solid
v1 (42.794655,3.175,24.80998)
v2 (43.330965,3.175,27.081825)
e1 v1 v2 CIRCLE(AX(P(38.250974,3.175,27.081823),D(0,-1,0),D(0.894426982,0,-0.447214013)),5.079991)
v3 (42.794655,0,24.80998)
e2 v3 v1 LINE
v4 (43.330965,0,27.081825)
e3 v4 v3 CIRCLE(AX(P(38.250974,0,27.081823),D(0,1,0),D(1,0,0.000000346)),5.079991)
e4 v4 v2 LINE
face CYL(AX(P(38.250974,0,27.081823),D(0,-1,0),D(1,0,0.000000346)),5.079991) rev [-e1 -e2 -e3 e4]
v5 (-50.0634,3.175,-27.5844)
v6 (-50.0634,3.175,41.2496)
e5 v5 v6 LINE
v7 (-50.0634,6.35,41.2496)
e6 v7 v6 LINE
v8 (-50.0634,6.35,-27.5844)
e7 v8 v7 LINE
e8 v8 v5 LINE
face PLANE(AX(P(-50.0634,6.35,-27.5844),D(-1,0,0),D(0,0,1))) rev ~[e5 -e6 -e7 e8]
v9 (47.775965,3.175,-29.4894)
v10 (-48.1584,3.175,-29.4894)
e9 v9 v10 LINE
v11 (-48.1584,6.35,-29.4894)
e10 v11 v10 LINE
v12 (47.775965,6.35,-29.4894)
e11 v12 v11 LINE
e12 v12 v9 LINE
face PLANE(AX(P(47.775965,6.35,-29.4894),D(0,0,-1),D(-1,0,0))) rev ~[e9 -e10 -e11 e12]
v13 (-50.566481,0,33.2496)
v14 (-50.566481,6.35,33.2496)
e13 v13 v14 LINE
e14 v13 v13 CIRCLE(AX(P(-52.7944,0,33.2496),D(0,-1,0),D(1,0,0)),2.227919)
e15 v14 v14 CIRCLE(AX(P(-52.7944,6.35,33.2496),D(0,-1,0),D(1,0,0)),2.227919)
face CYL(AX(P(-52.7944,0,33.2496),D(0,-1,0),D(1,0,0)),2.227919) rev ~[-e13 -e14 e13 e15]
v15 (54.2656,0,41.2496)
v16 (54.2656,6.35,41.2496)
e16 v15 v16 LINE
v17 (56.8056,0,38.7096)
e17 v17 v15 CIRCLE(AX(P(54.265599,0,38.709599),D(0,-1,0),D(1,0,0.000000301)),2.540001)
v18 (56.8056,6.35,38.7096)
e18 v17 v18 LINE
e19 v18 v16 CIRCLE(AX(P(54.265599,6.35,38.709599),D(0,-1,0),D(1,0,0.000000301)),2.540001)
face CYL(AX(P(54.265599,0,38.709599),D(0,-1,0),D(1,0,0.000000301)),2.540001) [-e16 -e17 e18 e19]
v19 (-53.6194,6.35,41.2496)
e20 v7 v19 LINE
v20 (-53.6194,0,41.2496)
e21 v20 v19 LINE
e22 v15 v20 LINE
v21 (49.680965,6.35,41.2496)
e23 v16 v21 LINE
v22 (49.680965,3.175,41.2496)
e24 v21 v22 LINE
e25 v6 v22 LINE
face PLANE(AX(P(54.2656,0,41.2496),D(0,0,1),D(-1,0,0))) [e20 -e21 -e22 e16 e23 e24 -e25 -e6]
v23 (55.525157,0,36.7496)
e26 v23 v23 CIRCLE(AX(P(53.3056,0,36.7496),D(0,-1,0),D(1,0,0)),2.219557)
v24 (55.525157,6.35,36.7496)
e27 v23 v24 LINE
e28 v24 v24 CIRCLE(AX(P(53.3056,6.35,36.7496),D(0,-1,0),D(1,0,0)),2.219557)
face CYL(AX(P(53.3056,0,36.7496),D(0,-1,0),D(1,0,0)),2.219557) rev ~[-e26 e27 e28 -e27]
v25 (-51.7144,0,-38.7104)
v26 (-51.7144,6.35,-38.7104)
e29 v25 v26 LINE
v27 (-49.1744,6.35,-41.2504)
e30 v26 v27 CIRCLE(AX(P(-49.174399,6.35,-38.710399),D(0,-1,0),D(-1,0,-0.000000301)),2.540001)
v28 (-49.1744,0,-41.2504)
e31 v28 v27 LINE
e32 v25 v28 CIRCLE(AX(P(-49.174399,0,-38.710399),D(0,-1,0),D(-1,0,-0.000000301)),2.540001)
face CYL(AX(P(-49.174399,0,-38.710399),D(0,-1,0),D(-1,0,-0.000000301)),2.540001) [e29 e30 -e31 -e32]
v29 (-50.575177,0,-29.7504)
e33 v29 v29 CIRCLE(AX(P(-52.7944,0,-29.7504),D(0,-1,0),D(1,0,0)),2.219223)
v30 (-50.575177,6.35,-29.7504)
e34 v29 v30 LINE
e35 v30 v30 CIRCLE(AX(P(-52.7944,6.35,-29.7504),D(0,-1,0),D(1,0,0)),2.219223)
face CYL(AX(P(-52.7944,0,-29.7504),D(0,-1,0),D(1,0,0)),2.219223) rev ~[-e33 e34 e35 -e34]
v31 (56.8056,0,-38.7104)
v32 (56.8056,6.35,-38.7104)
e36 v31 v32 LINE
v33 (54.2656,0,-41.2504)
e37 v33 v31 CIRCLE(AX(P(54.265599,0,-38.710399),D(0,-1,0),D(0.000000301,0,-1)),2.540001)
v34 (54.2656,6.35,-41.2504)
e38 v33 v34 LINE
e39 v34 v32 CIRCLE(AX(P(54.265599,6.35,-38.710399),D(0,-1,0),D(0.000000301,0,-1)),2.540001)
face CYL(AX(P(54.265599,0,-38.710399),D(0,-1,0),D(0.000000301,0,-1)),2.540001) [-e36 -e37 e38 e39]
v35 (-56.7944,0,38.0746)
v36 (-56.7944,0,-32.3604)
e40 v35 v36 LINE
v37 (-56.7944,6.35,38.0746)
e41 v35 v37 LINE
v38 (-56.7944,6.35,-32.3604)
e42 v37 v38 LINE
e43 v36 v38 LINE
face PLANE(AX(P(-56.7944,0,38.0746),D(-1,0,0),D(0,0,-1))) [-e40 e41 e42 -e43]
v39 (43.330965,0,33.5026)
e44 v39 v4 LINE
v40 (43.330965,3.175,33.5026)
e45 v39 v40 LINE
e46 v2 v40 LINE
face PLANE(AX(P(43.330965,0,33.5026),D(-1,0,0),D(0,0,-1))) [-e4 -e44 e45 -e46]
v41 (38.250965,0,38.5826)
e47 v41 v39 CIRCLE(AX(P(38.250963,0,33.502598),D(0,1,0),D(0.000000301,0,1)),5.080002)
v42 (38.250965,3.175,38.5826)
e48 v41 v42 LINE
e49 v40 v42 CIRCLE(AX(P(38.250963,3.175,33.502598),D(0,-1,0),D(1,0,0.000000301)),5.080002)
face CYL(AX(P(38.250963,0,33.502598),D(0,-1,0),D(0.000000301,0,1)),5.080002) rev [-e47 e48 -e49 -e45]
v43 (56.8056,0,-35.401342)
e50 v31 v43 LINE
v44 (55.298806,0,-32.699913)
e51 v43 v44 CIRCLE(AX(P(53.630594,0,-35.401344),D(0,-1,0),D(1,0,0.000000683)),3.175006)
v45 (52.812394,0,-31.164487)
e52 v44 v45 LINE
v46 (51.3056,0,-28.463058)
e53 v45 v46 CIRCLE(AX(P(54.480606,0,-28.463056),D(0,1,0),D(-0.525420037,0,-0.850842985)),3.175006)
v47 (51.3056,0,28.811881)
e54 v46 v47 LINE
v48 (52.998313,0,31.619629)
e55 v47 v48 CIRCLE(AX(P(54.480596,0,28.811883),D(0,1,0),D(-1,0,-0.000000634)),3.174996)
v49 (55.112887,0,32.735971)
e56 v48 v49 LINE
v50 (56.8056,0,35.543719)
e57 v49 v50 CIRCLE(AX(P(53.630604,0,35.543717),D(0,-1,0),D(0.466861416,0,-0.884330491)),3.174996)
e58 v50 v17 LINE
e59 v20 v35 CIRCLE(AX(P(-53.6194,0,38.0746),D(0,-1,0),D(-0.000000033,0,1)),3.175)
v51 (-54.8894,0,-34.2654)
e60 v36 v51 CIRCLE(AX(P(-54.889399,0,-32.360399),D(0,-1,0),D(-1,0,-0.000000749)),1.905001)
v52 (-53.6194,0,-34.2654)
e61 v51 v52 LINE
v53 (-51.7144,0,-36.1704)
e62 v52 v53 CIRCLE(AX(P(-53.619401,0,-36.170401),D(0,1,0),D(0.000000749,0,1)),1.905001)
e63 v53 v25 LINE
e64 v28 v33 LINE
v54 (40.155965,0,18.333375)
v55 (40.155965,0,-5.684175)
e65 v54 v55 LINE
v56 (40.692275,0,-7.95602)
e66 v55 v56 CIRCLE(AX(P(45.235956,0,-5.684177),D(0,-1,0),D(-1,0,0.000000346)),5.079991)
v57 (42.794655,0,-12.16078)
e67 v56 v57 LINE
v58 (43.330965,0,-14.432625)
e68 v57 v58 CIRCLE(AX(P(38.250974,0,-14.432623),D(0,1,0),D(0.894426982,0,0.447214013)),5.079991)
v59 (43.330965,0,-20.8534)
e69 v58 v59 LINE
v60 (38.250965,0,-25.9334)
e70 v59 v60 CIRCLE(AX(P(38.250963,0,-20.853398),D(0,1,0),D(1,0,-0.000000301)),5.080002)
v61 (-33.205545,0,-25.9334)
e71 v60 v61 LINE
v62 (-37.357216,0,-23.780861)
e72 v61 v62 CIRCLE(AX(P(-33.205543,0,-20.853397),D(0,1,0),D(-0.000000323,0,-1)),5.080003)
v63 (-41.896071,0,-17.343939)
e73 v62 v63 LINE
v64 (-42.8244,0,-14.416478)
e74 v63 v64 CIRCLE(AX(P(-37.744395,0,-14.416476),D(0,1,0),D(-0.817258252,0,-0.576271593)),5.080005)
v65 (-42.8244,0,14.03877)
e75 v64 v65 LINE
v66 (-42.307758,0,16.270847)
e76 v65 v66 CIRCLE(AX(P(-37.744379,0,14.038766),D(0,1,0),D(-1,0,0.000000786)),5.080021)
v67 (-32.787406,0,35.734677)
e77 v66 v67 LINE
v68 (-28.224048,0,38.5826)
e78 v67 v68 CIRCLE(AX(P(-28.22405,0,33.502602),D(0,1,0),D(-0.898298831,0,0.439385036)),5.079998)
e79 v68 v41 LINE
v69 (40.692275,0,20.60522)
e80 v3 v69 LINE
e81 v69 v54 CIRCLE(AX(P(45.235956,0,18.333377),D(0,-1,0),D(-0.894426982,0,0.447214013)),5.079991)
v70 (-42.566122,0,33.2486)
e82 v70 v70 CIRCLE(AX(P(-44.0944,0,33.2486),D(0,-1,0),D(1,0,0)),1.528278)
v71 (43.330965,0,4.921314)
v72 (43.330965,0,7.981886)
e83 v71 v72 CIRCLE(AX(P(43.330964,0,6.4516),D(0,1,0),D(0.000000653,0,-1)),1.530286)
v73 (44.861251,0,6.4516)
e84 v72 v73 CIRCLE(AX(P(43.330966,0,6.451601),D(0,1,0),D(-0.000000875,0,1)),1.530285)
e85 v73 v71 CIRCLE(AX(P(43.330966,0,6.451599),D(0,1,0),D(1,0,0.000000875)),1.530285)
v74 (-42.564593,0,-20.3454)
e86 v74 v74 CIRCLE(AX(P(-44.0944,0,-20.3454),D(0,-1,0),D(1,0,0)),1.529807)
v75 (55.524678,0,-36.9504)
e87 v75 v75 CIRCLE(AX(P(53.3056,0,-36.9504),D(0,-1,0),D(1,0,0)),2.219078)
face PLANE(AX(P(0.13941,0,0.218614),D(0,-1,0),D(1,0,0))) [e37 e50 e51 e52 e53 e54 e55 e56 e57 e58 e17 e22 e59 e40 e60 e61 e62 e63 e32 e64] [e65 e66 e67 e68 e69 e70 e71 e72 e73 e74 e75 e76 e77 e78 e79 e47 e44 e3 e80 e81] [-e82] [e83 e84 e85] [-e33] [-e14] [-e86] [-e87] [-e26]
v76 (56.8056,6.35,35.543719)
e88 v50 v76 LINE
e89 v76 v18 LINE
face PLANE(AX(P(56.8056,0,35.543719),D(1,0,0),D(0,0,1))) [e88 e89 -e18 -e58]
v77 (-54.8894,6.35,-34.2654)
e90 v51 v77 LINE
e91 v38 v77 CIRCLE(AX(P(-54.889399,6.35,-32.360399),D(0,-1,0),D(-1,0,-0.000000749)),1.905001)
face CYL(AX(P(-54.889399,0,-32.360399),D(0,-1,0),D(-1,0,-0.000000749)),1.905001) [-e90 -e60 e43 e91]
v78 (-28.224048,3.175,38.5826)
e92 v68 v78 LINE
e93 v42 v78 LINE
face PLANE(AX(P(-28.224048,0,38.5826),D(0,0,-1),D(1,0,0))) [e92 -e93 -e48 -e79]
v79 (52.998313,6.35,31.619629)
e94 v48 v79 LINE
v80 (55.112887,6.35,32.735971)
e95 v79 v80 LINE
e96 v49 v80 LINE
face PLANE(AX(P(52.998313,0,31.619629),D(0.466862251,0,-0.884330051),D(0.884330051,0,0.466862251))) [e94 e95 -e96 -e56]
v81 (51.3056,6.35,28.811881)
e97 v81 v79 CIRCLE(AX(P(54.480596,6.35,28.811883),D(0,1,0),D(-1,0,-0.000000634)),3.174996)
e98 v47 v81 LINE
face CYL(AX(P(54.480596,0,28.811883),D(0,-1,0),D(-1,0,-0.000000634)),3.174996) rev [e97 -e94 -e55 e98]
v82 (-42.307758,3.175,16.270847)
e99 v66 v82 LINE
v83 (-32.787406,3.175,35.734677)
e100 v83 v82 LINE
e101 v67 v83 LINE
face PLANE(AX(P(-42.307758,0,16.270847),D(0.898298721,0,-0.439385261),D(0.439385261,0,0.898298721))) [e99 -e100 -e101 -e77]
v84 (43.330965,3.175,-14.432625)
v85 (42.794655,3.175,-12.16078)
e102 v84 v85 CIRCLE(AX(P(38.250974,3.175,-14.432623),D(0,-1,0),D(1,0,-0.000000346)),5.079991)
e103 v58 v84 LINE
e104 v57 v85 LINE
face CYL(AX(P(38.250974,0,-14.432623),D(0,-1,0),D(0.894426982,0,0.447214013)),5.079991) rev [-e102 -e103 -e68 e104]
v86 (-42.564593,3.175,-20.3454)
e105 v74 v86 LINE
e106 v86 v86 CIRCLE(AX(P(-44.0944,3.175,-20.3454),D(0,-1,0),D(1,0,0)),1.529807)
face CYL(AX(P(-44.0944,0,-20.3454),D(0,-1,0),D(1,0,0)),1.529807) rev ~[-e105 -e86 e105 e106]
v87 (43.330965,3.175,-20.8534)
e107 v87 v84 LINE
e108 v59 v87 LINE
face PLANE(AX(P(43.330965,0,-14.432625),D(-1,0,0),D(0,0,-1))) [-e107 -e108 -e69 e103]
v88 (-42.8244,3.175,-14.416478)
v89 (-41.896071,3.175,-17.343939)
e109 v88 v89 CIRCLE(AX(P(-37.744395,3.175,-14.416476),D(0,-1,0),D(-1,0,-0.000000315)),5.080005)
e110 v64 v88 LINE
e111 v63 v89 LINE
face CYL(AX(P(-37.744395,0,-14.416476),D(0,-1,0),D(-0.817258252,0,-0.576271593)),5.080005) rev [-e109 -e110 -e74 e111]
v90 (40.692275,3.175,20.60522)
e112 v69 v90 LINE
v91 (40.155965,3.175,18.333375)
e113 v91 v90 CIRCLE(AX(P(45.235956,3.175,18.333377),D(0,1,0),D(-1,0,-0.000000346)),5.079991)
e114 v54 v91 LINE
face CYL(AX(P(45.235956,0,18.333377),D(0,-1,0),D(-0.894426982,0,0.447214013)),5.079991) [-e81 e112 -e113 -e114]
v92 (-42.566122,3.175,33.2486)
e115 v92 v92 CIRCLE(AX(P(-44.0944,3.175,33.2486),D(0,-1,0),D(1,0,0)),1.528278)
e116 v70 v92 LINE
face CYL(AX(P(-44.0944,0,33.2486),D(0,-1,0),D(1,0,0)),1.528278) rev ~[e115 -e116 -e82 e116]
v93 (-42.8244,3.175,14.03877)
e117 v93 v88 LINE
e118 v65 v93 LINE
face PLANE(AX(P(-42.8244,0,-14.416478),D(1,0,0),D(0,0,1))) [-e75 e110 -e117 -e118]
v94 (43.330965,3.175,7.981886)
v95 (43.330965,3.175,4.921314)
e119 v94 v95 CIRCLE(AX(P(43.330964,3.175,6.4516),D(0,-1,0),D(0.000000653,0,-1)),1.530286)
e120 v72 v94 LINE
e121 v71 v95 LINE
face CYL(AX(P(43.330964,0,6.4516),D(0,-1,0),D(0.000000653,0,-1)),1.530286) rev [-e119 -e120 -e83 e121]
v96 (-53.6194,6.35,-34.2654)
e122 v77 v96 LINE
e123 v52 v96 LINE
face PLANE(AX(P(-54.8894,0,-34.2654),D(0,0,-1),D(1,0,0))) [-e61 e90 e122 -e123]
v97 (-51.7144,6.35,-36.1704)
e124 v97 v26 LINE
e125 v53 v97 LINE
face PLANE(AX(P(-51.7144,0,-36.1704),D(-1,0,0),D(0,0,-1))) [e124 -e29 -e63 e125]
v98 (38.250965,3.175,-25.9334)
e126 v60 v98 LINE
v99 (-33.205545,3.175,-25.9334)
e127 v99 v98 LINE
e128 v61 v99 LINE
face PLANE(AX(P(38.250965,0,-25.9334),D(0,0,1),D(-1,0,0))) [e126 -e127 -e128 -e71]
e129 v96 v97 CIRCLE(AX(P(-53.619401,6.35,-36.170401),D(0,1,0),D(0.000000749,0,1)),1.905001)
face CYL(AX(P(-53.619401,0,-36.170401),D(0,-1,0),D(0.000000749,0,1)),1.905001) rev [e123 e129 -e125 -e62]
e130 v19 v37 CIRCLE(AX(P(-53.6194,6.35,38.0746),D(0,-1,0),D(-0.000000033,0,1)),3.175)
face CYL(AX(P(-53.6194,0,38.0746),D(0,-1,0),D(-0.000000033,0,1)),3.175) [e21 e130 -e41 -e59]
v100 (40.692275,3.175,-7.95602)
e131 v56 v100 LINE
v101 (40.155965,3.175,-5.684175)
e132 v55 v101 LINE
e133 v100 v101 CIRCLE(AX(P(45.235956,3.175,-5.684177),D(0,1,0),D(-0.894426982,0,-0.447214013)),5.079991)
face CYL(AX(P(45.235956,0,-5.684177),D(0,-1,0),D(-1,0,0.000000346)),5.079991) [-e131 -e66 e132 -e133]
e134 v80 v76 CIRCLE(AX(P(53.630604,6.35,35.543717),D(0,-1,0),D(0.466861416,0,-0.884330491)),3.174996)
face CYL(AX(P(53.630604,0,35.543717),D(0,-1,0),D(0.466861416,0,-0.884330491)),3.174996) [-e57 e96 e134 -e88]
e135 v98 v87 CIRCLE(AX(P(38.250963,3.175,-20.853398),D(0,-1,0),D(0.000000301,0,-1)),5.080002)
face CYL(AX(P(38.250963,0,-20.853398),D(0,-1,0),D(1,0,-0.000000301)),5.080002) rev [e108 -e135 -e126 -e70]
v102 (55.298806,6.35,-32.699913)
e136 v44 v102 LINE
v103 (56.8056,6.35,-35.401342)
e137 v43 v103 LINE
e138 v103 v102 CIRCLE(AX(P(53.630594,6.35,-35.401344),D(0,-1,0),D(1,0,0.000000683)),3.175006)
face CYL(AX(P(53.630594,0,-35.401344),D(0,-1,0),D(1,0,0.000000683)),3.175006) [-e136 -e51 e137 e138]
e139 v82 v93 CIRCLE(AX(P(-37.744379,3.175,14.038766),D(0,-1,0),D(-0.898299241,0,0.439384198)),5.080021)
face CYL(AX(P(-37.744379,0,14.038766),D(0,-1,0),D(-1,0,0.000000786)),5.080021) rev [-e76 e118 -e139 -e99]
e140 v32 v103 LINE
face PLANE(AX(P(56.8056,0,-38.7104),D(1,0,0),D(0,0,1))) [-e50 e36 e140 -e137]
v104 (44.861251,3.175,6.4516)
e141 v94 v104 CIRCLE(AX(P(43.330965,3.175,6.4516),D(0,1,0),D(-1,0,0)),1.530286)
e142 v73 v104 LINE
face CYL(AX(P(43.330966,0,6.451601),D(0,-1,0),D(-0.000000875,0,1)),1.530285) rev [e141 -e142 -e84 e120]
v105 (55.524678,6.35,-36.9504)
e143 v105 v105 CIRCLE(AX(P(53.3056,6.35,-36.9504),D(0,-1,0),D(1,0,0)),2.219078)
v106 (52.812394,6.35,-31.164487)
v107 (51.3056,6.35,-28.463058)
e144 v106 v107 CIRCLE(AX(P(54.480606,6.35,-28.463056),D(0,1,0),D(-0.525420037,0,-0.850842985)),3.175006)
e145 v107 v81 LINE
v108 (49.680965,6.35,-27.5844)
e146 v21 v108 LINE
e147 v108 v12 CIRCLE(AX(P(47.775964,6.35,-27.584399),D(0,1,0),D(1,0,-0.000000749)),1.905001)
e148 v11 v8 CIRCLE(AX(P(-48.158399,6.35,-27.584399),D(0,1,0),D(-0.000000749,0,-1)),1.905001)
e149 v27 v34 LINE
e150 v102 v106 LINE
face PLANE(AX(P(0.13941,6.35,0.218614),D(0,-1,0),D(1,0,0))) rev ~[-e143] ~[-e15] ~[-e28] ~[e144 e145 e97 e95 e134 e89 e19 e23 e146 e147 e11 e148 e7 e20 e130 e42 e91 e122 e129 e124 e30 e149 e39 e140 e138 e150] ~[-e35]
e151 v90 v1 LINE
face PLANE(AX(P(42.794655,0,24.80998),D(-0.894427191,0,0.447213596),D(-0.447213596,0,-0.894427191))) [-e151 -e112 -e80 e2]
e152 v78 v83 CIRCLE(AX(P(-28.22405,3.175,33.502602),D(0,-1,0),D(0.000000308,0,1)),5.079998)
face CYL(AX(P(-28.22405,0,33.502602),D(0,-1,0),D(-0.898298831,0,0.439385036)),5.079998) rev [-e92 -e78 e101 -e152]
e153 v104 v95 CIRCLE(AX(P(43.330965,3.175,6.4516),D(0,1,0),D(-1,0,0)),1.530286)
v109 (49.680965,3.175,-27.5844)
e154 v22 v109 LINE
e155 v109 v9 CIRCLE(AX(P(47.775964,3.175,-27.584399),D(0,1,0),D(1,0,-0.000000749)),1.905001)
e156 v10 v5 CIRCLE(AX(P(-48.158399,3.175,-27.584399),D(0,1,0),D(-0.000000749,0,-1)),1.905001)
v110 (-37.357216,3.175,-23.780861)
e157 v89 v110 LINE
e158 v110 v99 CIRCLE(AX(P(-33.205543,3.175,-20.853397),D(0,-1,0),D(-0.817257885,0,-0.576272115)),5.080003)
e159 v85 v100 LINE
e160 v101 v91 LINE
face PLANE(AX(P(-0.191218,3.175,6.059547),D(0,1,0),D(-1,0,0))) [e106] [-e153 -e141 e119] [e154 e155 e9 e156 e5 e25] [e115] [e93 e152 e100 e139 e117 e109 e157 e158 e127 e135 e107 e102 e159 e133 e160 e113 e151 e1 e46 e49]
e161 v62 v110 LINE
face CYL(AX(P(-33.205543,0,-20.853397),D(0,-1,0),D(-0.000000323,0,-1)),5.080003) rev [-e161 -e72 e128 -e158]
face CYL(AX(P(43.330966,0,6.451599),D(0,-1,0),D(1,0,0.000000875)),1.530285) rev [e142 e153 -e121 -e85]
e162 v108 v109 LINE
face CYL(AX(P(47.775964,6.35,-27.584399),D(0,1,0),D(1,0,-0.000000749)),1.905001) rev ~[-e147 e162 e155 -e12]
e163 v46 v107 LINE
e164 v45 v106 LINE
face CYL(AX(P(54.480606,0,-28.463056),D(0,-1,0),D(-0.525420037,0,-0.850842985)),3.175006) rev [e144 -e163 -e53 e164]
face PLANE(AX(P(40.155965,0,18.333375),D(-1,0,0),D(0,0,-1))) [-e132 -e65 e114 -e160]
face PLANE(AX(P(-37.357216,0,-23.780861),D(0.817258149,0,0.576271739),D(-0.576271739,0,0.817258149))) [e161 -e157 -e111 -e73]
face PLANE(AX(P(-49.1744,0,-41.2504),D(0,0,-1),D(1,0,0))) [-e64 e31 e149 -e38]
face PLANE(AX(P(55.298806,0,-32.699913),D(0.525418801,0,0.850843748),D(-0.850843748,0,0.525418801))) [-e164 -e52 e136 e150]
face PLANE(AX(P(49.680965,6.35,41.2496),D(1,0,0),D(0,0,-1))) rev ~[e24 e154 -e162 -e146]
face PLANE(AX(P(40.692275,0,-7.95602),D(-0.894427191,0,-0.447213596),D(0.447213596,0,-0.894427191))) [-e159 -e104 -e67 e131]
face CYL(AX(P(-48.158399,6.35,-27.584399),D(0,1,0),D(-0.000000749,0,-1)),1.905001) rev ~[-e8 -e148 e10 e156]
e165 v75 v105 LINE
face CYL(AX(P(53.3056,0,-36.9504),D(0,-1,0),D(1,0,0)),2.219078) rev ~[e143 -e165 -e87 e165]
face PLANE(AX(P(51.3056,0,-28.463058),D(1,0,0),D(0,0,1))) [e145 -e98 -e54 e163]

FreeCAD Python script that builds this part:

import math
import FreeCAD as App
import Part
import Sketcher
from FreeCAD import Vector
Q = App.Units.Quantity

doc = App.newDocument("Part")
body = doc.addObject("PartDesign::Body", "Body")

# Sketch on XZ plane
sketch1 = doc.addObject("Sketcher::SketchObject", "Sketch")
body.addObject(sketch1)
sketch1.AttachmentSupport = (doc.XZ_Plane, [""])
sketch1.MapMode = "FlatFace"
sketch1.addGeometry(Part.LineSegment(Vector(54.2656, 41.2496, 0), Vector(-53.6194, 41.2496, 0)), False)
sketch1.addGeometry(Part.ArcOfCircle(Part.Circle(Vector(-53.6194, 38.0746, 0), Vector(0, 0, 1), 3.175), math.radians(90.000002), math.radians(179.999998)), False)
sketch1.addGeometry(Part.LineSegment(Vector(-56.7944, 38.0746, 0), Vector(-56.7944, -32.3604, 0)), False)
sketch1.addGeometry(Part.ArcOfCircle(Part.Circle(Vector(-54.889399, -32.360399, 0), Vector(0, 0, 1), 1.905001), math.radians(-179.999957), math.radians(-90.000043)), False)
sketch1.addGeometry(Part.LineSegment(Vector(-54.8894, -34.2654, 0), Vector(-53.6194, -34.2654, 0)), False)
sketch1.addGeometry(Part.ArcOfCircle(Part.Circle(Vector(-53.619401, -36.170401, 0), Vector(0, 0, 1), 1.905001), math.radians(0.000043), math.radians(89.999957)), False)
sketch1.addGeometry(Part.LineSegment(Vector(-51.7144, -36.1704, 0), Vector(-51.7144, -38.7104, 0)), False)
sketch1.addGeometry(Part.ArcOfCircle(Part.Circle(Vector(-49.174399, -38.710399, 0), Vector(0, 0, 1), 2.540001), math.radians(-179.999983), math.radians(-90.000017)), False)
sketch1.addGeometry(Part.LineSegment(Vector(-49.1744, -41.2504, 0), Vector(54.2656, -41.2504, 0)), False)
sketch1.addGeometry(Part.ArcOfCircle(Part.Circle(Vector(54.265599, -38.710399, 0), Vector(0, 0, 1), 2.540001), math.radians(-89.999983), math.radians(-0.000017)), False)
sketch1.addGeometry(Part.LineSegment(Vector(56.8056, -38.7104, 0), Vector(56.8056, -35.401342, 0)), False)
sketch1.addGeometry(Part.ArcOfCircle(Part.Circle(Vector(53.630594, -35.401344, 0), Vector(0, 0, 1), 3.175006), math.radians(0.000039), math.radians(58.303476)), False)
sketch1.addGeometry(Part.LineSegment(Vector(55.298806, -32.699913, 0), Vector(52.812394, -31.164487, 0)), False)
sketch1.addGeometry(Part.ArcOfCircle(Part.Circle(Vector(54.480606, -28.463056, 0), Vector(0, 0, 1), 3.175006), math.radians(-179.999961), math.radians(-121.696524)), False)
sketch1.addGeometry(Part.LineSegment(Vector(51.3056, -28.463058, 0), Vector(51.3056, 28.811881, 0)), False)
sketch1.addGeometry(Part.ArcOfCircle(Part.Circle(Vector(54.480596, 28.811883, 0), Vector(0, 0, 1), 3.174996), math.radians(117.830756), math.radians(180.000036)), False)
sketch1.addGeometry(Part.LineSegment(Vector(52.998313, 31.619629, 0), Vector(55.112887, 32.735971, 0)), False)
sketch1.addGeometry(Part.ArcOfCircle(Part.Circle(Vector(53.630604, 35.543717, 0), Vector(0, 0, 1), 3.174996), math.radians(-62.169244), math.radians(0.000036)), False)
sketch1.addGeometry(Part.LineSegment(Vector(56.8056, 35.543719, 0), Vector(56.8056, 38.7096, 0)), False)
sketch1.addGeometry(Part.ArcOfCircle(Part.Circle(Vector(54.265599, 38.709599, 0), Vector(0, 0, 1), 2.540001), math.radians(0.000017), math.radians(89.999983)), False)
sketch1.addGeometry(Part.Circle(Vector(-52.7944, -29.7504, 0), Vector(0, 0, 1), 2.219223), False)
sketch1.addGeometry(Part.Circle(Vector(-44.0944, -20.3454, 0), Vector(0, 0, 1), 1.529807), False)
sketch1.addGeometry(Part.Circle(Vector(53.3056, -36.9504, 0), Vector(0, 0, 1), 2.219078), False)
sketch1.addGeometry(Part.Circle(Vector(-52.7944, 33.2496, 0), Vector(0, 0, 1), 2.227919), False)
sketch1.addGeometry(Part.Circle(Vector(-44.0944, 33.2486, 0), Vector(0, 0, 1), 1.528278), False)
sketch1.addGeometry(Part.LineSegment(Vector(43.330965, -14.432625, 0), Vector(43.330965, -20.8534, 0)), False)
sketch1.addGeometry(Part.ArcOfCircle(Part.Circle(Vector(38.250963, -20.853398, 0), Vector(0, 0, 1), 5.080002), math.radians(-89.999983), math.radians(-0.000017)), False)
sketch1.addGeometry(Part.LineSegment(Vector(38.250965, -25.9334, 0), Vector(-33.205545, -25.9334, 0)), False)
sketch1.addGeometry(Part.ArcOfCircle(Part.Circle(Vector(-33.205543, -20.853397, 0), Vector(0, 0, 1), 5.080003), math.radians(-144.811232), math.radians(-90.000019)), False)
sketch1.addGeometry(Part.LineSegment(Vector(-37.357216, -23.780861, 0), Vector(-41.896071, -17.343939, 0)), False)
sketch1.addGeometry(Part.ArcOfCircle(Part.Circle(Vector(-37.744395, -14.416476, 0), Vector(0, 0, 1), 5.080005), math.radians(-179.999982), math.radians(-144.811269)), False)
sketch1.addGeometry(Part.LineSegment(Vector(-42.8244, -14.416478, 0), Vector(-42.8244, 14.03877, 0)), False)
sketch1.addGeometry(Part.ArcOfCircle(Part.Circle(Vector(-37.744379, 14.038766, 0), Vector(0, 0, 1), 5.080021), math.radians(153.935403), math.radians(179.999955)), False)
sketch1.addGeometry(Part.LineSegment(Vector(-42.307758, 16.270847, 0), Vector(-32.787406, 35.734677, 0)), False)
sketch1.addGeometry(Part.ArcOfCircle(Part.Circle(Vector(-28.22405, 33.502602, 0), Vector(0, 0, 1), 5.079998), math.radians(89.999982), math.radians(153.935349)), False)
sketch1.addGeometry(Part.LineSegment(Vector(-28.224048, 38.5826, 0), Vector(38.250965, 38.5826, 0)), False)
sketch1.addGeometry(Part.ArcOfCircle(Part.Circle(Vector(38.250963, 33.502598, 0), Vector(0, 0, 1), 5.080002), math.radians(0.000017), math.radians(89.999983)), False)
sketch1.addGeometry(Part.LineSegment(Vector(43.330965, 33.5026, 0), Vector(43.330965, 27.081825, 0)), False)
sketch1.addGeometry(Part.ArcOfCircle(Part.Circle(Vector(38.250974, 27.081823, 0), Vector(0, 0, 1), 5.079991), math.radians(-26.565078), math.radians(0.00002)), False)
sketch1.addGeometry(Part.LineSegment(Vector(42.794655, 24.80998, 0), Vector(40.692275, 20.60522, 0)), False)
sketch1.addGeometry(Part.ArcOfCircle(Part.Circle(Vector(45.235956, 18.333377, 0), Vector(0, 0, 1), 5.079991), math.radians(153.434922), math.radians(180.00002)), False)
sketch1.addGeometry(Part.LineSegment(Vector(40.155965, 18.333375, 0), Vector(40.155965, -5.684175, 0)), False)
sketch1.addGeometry(Part.ArcOfCircle(Part.Circle(Vector(45.235956, -5.684177, 0), Vector(0, 0, 1), 5.079991), math.radians(179.99998), math.radians(206.565078)), False)
sketch1.addGeometry(Part.LineSegment(Vector(40.692275, -7.95602, 0), Vector(42.794655, -12.16078, 0)), False)
sketch1.addGeometry(Part.ArcOfCircle(Part.Circle(Vector(38.250974, -14.432623, 0), Vector(0, 0, 1), 5.079991), math.radians(-0.00002), math.radians(26.565078)), False)
sketch1.addGeometry(Part.ArcOfCircle(Part.Circle(Vector(43.330964, 6.4516, 0), Vector(0, 0, 1), 1.530286), math.radians(89.999963), math.radians(270.000037)), False)
sketch1.addGeometry(Part.ArcOfCircle(Part.Circle(Vector(43.330966, 6.451601, 0), Vector(0, 0, 1), 1.530285), math.radians(-0.00005), math.radians(90.00005)), False)
sketch1.addGeometry(Part.ArcOfCircle(Part.Circle(Vector(43.330966, 6.451599, 0), Vector(0, 0, 1), 1.530285), math.radians(-90.00005), math.radians(0.00005)), False)
sketch1.addGeometry(Part.Circle(Vector(53.3056, 36.7496, 0), Vector(0, 0, 1), 2.219557), False)
sketch1.addConstraint(Sketcher.Constraint("Tangent", 0, 2, 1, 1))
sketch1.addConstraint(Sketcher.Constraint("Tangent", 1, 2, 2, 1))
sketch1.addConstraint(Sketcher.Constraint("Tangent", 2, 2, 3, 1))
sketch1.addConstraint(Sketcher.Constraint("Tangent", 3, 2, 4, 1))
sketch1.addConstraint(Sketcher.Constraint("Tangent", 4, 2, 5, 2))
sketch1.addConstraint(Sketcher.Constraint("Tangent", 5, 1, 6, 1))
sketch1.addConstraint(Sketcher.Constraint("Tangent", 6, 2, 7, 1))
sketch1.addConstraint(Sketcher.Constraint("Tangent", 7, 2, 8, 1))
sketch1.addConstraint(Sketcher.Constraint("Tangent", 8, 2, 9, 1))
sketch1.addConstraint(Sketcher.Constraint("Tangent", 9, 2, 10, 1))
sketch1.addConstraint(Sketcher.Constraint("Tangent", 10, 2, 11, 1))
sketch1.addConstraint(Sketcher.Constraint("Tangent", 11, 2, 12, 1))
sketch1.addConstraint(Sketcher.Constraint("Tangent", 12, 2, 13, 2))
sketch1.addConstraint(Sketcher.Constraint("Tangent", 13, 1, 14, 1))
sketch1.addConstraint(Sketcher.Constraint("Tangent", 14, 2, 15, 2))
sketch1.addConstraint(Sketcher.Constraint("Tangent", 15, 1, 16, 1))
sketch1.addConstraint(Sketcher.Constraint("Tangent", 16, 2, 17, 1))
sketch1.addConstraint(Sketcher.Constraint("Tangent", 17, 2, 18, 1))
sketch1.addConstraint(Sketcher.Constraint("Tangent", 18, 2, 19, 1))
sketch1.addConstraint(Sketcher.Constraint("Tangent", 19, 2, 0, 1))
sketch1.addConstraint(Sketcher.Constraint("Tangent", 25, 2, 26, 2))
sketch1.addConstraint(Sketcher.Constraint("Tangent", 26, 1, 27, 1))
sketch1.addConstraint(Sketcher.Constraint("Tangent", 27, 2, 28, 2))
sketch1.addConstraint(Sketcher.Constraint("Tangent", 28, 1, 29, 1))
sketch1.addConstraint(Sketcher.Constraint("Tangent", 29, 2, 30, 2))
sketch1.addConstraint(Sketcher.Constraint("Tangent", 30, 1, 31, 1))
sketch1.addConstraint(Sketcher.Constraint("Tangent", 31, 2, 32, 2))
sketch1.addConstraint(Sketcher.Constraint("Tangent", 32, 1, 33, 1))
sketch1.addConstraint(Sketcher.Constraint("Tangent", 33, 2, 34, 2))
sketch1.addConstraint(Sketcher.Constraint("Tangent", 34, 1, 35, 1))
sketch1.addConstraint(Sketcher.Constraint("Tangent", 35, 2, 36, 2))
sketch1.addConstraint(Sketcher.Constraint("Tangent", 36, 1, 37, 1))
sketch1.addConstraint(Sketcher.Constraint("Tangent", 37, 2, 38, 2))
sketch1.addConstraint(Sketcher.Constraint("Tangent", 38, 1, 39, 1))
sketch1.addConstraint(Sketcher.Constraint("Tangent", 39, 2, 40, 1))
sketch1.addConstraint(Sketcher.Constraint("Tangent", 40, 2, 41, 1))
sketch1.addConstraint(Sketcher.Constraint("Tangent", 41, 2, 42, 1))
sketch1.addConstraint(Sketcher.Constraint("Tangent", 42, 2, 43, 1))
sketch1.addConstraint(Sketcher.Constraint("Tangent", 43, 2, 44, 2))
sketch1.addConstraint(Sketcher.Constraint("Tangent", 44, 1, 25, 1))
sketch1.addConstraint(Sketcher.Constraint("Tangent", 45, 1, 46, 2))
sketch1.addConstraint(Sketcher.Constraint("Tangent", 46, 1, 47, 2))
sketch1.addConstraint(Sketcher.Constraint("Tangent", 47, 1, 45, 2))
sketch1.addConstraint(Sketcher.Constraint("Horizontal", 0))
sketch1.addConstraint(Sketcher.Constraint("Vertical", 2))
sketch1.addConstraint(Sketcher.Constraint("Horizontal", 4))
sketch1.addConstraint(Sketcher.Constraint("Vertical", 6))
sketch1.addConstraint(Sketcher.Constraint("Horizontal", 8))
sketch1.addConstraint(Sketcher.Constraint("Vertical", 10))
sketch1.addConstraint(Sketcher.Constraint("Vertical", 14))
sketch1.addConstraint(Sketcher.Constraint("Vertical", 18))
sketch1.addConstraint(Sketcher.Constraint("Vertical", 25))
sketch1.addConstraint(Sketcher.Constraint("Horizontal", 27))
sketch1.addConstraint(Sketcher.Constraint("Vertical", 31))
sketch1.addConstraint(Sketcher.Constraint("Horizontal", 35))
sketch1.addConstraint(Sketcher.Constraint("Vertical", 37))
sketch1.addConstraint(Sketcher.Constraint("Vertical", 41))
sketch1.addConstraint(Sketcher.Constraint("Equal", 3, 5))
sketch1.addConstraint(Sketcher.Constraint("Equal", 7, 9))
sketch1.addConstraint(Sketcher.Constraint("Equal", 11, 13))
sketch1.addConstraint(Sketcher.Constraint("Equal", 15, 17))
sketch1.addConstraint(Sketcher.Constraint("Equal", 9, 19))
sketch1.addConstraint(Sketcher.Constraint("Equal", 26, 28))
sketch1.addConstraint(Sketcher.Constraint("Equal", 28, 30))
sketch1.addConstraint(Sketcher.Constraint("Equal", 28, 36))
sketch1.addConstraint(Sketcher.Constraint("Equal", 38, 40))
sketch1.addConstraint(Sketcher.Constraint("Equal", 40, 42))
sketch1.addConstraint(Sketcher.Constraint("Equal", 42, 44))
sketch1.addConstraint(Sketcher.Constraint("Horizontal", 34, 3, 36, 1))
sketch1.addConstraint(Sketcher.Constraint("Horizontal", 47, 3, 46, 1))
sketch1.addConstraint(Sketcher.Constraint("Vertical", 1, 3, 5, 3))
sketch1.addConstraint(Sketcher.Constraint("Vertical", 9, 3, 19, 3))
sketch1.addConstraint(Sketcher.Constraint("Vertical", 20, 3, 23, 3))
sketch1.addConstraint(Sketcher.Constraint("Vertical", 21, 3, 24, 3))
sketch1.addConstraint(Sketcher.Constraint("Vertical", 26, 3, 36, 3))
sketch1.addConstraint(Sketcher.Constraint("Vertical", 22, 3, 48, 3))
sketch1.addConstraint(Sketcher.Constraint("Vertical", 47, 3, 25, 2))
sketch1.addConstraint(Sketcher.Constraint("Vertical", 39, 2, 42, 2))
sketch1.addConstraint(Sketcher.Constraint("Vertical", 44, 1, 45, 1))
sketch1.addConstraint(Sketcher.Constraint("Vertical", 45, 1, 47, 1))
sketch1.addConstraint(Sketcher.Constraint("Equal", 25, 37))
sketch1.addConstraint(Sketcher.Constraint("Radius", 7, Q("0.1 in")))
sketch1.addConstraint(Sketcher.Constraint("Radius", 26, Q("0.2000001 in")))
sketch1.addConstraint(Sketcher.Constraint("DistanceY", 6, 2, 6, 1, Q("0.1 in")))
sketch1.addConstraint(Sketcher.Constraint("Radius", 1, Q("0.125 in")))
sketch1.addConstraint(Sketcher.Constraint("Radius", 3, Q("0.0750001 in")))
sketch1.addConstraint(Sketcher.Constraint("Radius", 15, Q("0.1249999 in")))
sketch1.addConstraint(Sketcher.Constraint("DistanceX", 1, 3, -1, 1, Q("2.111 in")))
sketch1.addConstraint(Sketcher.Constraint("DistanceY", -1, 1, 1, 3, Q("1.499 in")))
sketch1.addConstraint(Sketcher.Constraint("DistanceX", 21, 3, -1, 1, Q("1.736 in")))
sketch1.addConstraint(Sketcher.Constraint("DistanceY", 21, 3, -1, 1, Q("0.801 in")))
sketch1.addConstraint(Sketcher.Constraint("DistanceY", -1, 1, 24, 3, Q("1.309 in")))
sketch1.addConstraint(Sketcher.Constraint("DistanceY", 26, 3, -1, 1, Q("0.8209999 in")))
sketch1.addConstraint(Sketcher.Constraint("DistanceX", 30, 3, -1, 1, Q("1.4859998 in")))
sketch1.addConstraint(Sketcher.Constraint("DistanceY", -1, 1, 34, 3, Q("1.3190001 in")))
sketch1.addConstraint(Sketcher.Constraint("DistanceY", -1, 1, 45, 3, Q("0.254 in")))
sketch1.addConstraint(Sketcher.Constraint("Radius", 32, Q("5.080021 mm")))
sketch1.addConstraint(Sketcher.Constraint("Radius", 38, Q("5.079991 mm")))
sketch1.addConstraint(Sketcher.Constraint("Diameter", 20, Q("4.438446 mm")))
sketch1.addConstraint(Sketcher.Constraint("Diameter", 21, Q("3.059614 mm")))
sketch1.addConstraint(Sketcher.Constraint("Diameter", 22, Q("4.438156 mm")))
sketch1.addConstraint(Sketcher.Constraint("Diameter", 23, Q("4.455838 mm")))
sketch1.addConstraint(Sketcher.Constraint("Diameter", 24, Q("3.056556 mm")))
sketch1.addConstraint(Sketcher.Constraint("Diameter", 48, Q("4.439114 mm")))
sketch1.addConstraint(Sketcher.Constraint("DistanceX", 0, 2, 0, 1, Q("107.885 mm")))
sketch1.addConstraint(Sketcher.Constraint("DistanceY", 2, 2, 2, 1, Q("70.435 mm")))
sketch1.addConstraint(Sketcher.Constraint("Radius", 11, Q("3.175006 mm")))
sketch1.addConstraint(Sketcher.Constraint("Radius", 45, Q("1.530286 mm")))
sketch1.addConstraint(Sketcher.Constraint("DistanceX", 27, 2, 27, 1, Q("71.45651 mm")))
sketch1.addConstraint(Sketcher.Constraint("DistanceY", 10, 1, 10, 2, Q("3.309058 mm")))
sketch1.addConstraint(Sketcher.Constraint("DistanceY", 14, 1, 14, 2, Q("57.274939 mm")))
sketch1.addConstraint(Sketcher.Constraint("DistanceY", 18, 1, 18, 2, Q("3.165881 mm")))
sketch1.addConstraint(Sketcher.Constraint("DistanceY", 41, 2, 41, 1, Q("24.01755 mm")))
sketch1.addConstraint(Sketcher.Constraint("DistanceX", 20, 3, -1, 1, Q("52.7944 mm")))
sketch1.addConstraint(Sketcher.Constraint("DistanceY", 20, 3, -1, 1, Q("29.7504 mm")))
sketch1.addConstraint(Sketcher.Constraint("DistanceX", -1, 1, 22, 3, Q("53.3056 mm")))
sketch1.addConstraint(Sketcher.Constraint("DistanceY", 22, 3, -1, 1, Q("36.9504 mm")))
sketch1.addConstraint(Sketcher.Constraint("DistanceY", -1, 1, 23, 3, Q("33.2496 mm")))
sketch1.addConstraint(Sketcher.Constraint("DistanceY", -1, 1, 48, 3, Q("36.7496 mm")))
sketch1.addConstraint(Sketcher.Constraint("DistanceX", -1, 1, 13, 1, Q("51.3056 mm")))
sketch1.addConstraint(Sketcher.Constraint("Distance", 12, Q("2.92229 mm")))
sketch1.addConstraint(Sketcher.Constraint("Distance", 29, Q("7.876241 mm")))
sketch1.addConstraint(Sketcher.Constraint("DistanceX", 35, 1, 35, 2, Q("66.475013 mm")))
sketch1.addConstraint(Sketcher.Constraint("DistanceY", 25, 2, 25, 1, Q("6.420775 mm")))
sketch1.addConstraint(Sketcher.Constraint("DistanceY", 31, 1, 31, 2, Q("28.455248 mm")))
sketch1.addConstraint(Sketcher.Constraint("DistanceX", 34, 3, -1, 1, Q("28.22405 mm")))
sketch1.addConstraint(Sketcher.Constraint("DistanceY", -1, 1, 38, 1, Q("24.80998 mm")))
pad1 = doc.addObject("PartDesign::Pad", "Pad")
body.addObject(pad1)
pad1.Profile = sketch1
pad1.Length = Q("0.25 in")
pad1.Reversed = True

# Sketch on XZ plane
sketch2 = doc.addObject("Sketcher::SketchObject", "Sketch001")
body.addObject(sketch2)
sketch2.AttachmentSupport = (doc.XZ_Plane, [""])
sketch2.MapMode = "FlatFace"
sketch2.AttachmentOffset = App.Placement(Vector(0, 0, -0.25 * 25.4), App.Rotation())
sketch2.addGeometry(Part.LineSegment(Vector(47.775965, -29.4894, 0), Vector(-48.1584, -29.4894, 0)), False)
sketch2.addGeometry(Part.ArcOfCircle(Part.Circle(Vector(-48.158399, -27.584399, 0), Vector(0, 0, 1), 1.905001), math.radians(-179.999957), math.radians(-90.000043)), False)
sketch2.addGeometry(Part.LineSegment(Vector(-50.0634, -27.5844, 0), Vector(-50.0634, 41.2496, 0)), False)
sketch2.addGeometry(Part.LineSegment(Vector(-50.0634, 41.2496, 0), Vector(49.680965, 41.2496, 0)), False)
sketch2.addGeometry(Part.LineSegment(Vector(49.680965, 41.2496, 0), Vector(49.680965, -27.5844, 0)), False)
sketch2.addGeometry(Part.ArcOfCircle(Part.Circle(Vector(47.775964, -27.584399, 0), Vector(0, 0, 1), 1.905001), math.radians(-89.999957), math.radians(-0.000043)), False)
sketch2.addGeometry(Part.Circle(Vector(-44.0944, -20.3454, 0), Vector(0, 0, 1), 1.529807), False)
sketch2.addGeometry(Part.Circle(Vector(43.330965, 6.4516, 0), Vector(0, 0, 1), 1.530286), False)
sketch2.addGeometry(Part.LineSegment(Vector(42.794655, -12.16078, 0), Vector(40.692275, -7.95602, 0)), False)
sketch2.addGeometry(Part.ArcOfCircle(Part.Circle(Vector(45.235956, -5.684177, 0), Vector(0, 0, 1), 5.079991), math.radians(179.99998), math.radians(206.565078)), False)
sketch2.addGeometry(Part.LineSegment(Vector(40.155965, -5.684175, 0), Vector(40.155965, 18.333375, 0)), False)
sketch2.addGeometry(Part.ArcOfCircle(Part.Circle(Vector(45.235956, 18.333377, 0), Vector(0, 0, 1), 5.079991), math.radians(153.434922), math.radians(180.00002)), False)
sketch2.addGeometry(Part.LineSegment(Vector(40.692275, 20.60522, 0), Vector(42.794655, 24.80998, 0)), False)
sketch2.addGeometry(Part.ArcOfCircle(Part.Circle(Vector(38.250974, 27.081823, 0), Vector(0, 0, 1), 5.079991), math.radians(-26.565078), math.radians(0.00002)), False)
sketch2.addGeometry(Part.LineSegment(Vector(43.330965, 27.081825, 0), Vector(43.330965, 33.5026, 0)), False)
sketch2.addGeometry(Part.ArcOfCircle(Part.Circle(Vector(38.250963, 33.502598, 0), Vector(0, 0, 1), 5.080002), math.radians(0.000017), math.radians(89.999983)), False)
sketch2.addGeometry(Part.LineSegment(Vector(38.250965, 38.5826, 0), Vector(-28.224048, 38.5826, 0)), False)
sketch2.addGeometry(Part.ArcOfCircle(Part.Circle(Vector(-28.22405, 33.502602, 0), Vector(0, 0, 1), 5.079998), math.radians(89.999982), math.radians(153.935349)), False)
sketch2.addGeometry(Part.LineSegment(Vector(-32.787406, 35.734677, 0), Vector(-42.307758, 16.270847, 0)), False)
sketch2.addGeometry(Part.ArcOfCircle(Part.Circle(Vector(-37.744379, 14.038766, 0), Vector(0, 0, 1), 5.080021), math.radians(153.935403), math.radians(179.999955)), False)
sketch2.addGeometry(Part.LineSegment(Vector(-42.8244, 14.03877, 0), Vector(-42.8244, -14.416478, 0)), False)
sketch2.addGeometry(Part.ArcOfCircle(Part.Circle(Vector(-37.744395, -14.416476, 0), Vector(0, 0, 1), 5.080005), math.radians(-179.999982), math.radians(-144.811269)), False)
sketch2.addGeometry(Part.LineSegment(Vector(-41.896071, -17.343939, 0), Vector(-37.357216, -23.780861, 0)), False)
sketch2.addGeometry(Part.ArcOfCircle(Part.Circle(Vector(-33.205543, -20.853397, 0), Vector(0, 0, 1), 5.080003), math.radians(-144.811232), math.radians(-90.000019)), False)
sketch2.addGeometry(Part.LineSegment(Vector(-33.205545, -25.9334, 0), Vector(38.250965, -25.9334, 0)), False)
sketch2.addGeometry(Part.ArcOfCircle(Part.Circle(Vector(38.250963, -20.853398, 0), Vector(0, 0, 1), 5.080002), math.radians(-89.999983), math.radians(-0.000017)), False)
sketch2.addGeometry(Part.LineSegment(Vector(43.330965, -20.8534, 0), Vector(43.330965, -14.432625, 0)), False)
sketch2.addGeometry(Part.ArcOfCircle(Part.Circle(Vector(38.250974, -14.432623, 0), Vector(0, 0, 1), 5.079991), math.radians(-0.00002), math.radians(26.565078)), False)
sketch2.addGeometry(Part.Circle(Vector(-44.0944, 33.2486, 0), Vector(0, 0, 1), 1.528278), False)
sketch2.addConstraint(Sketcher.Constraint("Tangent", 0, 2, 1, 2))
sketch2.addConstraint(Sketcher.Constraint("Tangent", 1, 1, 2, 1))
sketch2.addConstraint(Sketcher.Constraint("Coincident", 2, 2, 3, 1))
sketch2.addConstraint(Sketcher.Constraint("Coincident", 3, 2, 4, 1))
sketch2.addConstraint(Sketcher.Constraint("Tangent", 4, 2, 5, 2))
sketch2.addConstraint(Sketcher.Constraint("Tangent", 5, 1, 0, 1))
sketch2.addConstraint(Sketcher.Constraint("Tangent", 8, 2, 9, 2))
sketch2.addConstraint(Sketcher.Constraint("Tangent", 9, 1, 10, 1))
sketch2.addConstraint(Sketcher.Constraint("Tangent", 10, 2, 11, 2))
sketch2.addConstraint(Sketcher.Constraint("Tangent", 11, 1, 12, 1))
sketch2.addConstraint(Sketcher.Constraint("Tangent", 12, 2, 13, 1))
sketch2.addConstraint(Sketcher.Constraint("Tangent", 13, 2, 14, 1))
sketch2.addConstraint(Sketcher.Constraint("Tangent", 14, 2, 15, 1))
sketch2.addConstraint(Sketcher.Constraint("Tangent", 15, 2, 16, 1))
sketch2.addConstraint(Sketcher.Constraint("Tangent", 16, 2, 17, 1))
sketch2.addConstraint(Sketcher.Constraint("Tangent", 17, 2, 18, 1))
sketch2.addConstraint(Sketcher.Constraint("Tangent", 18, 2, 19, 1))
sketch2.addConstraint(Sketcher.Constraint("Tangent", 19, 2, 20, 1))
sketch2.addConstraint(Sketcher.Constraint("Tangent", 20, 2, 21, 1))
sketch2.addConstraint(Sketcher.Constraint("Tangent", 21, 2, 22, 1))
sketch2.addConstraint(Sketcher.Constraint("Tangent", 22, 2, 23, 1))
sketch2.addConstraint(Sketcher.Constraint("Tangent", 23, 2, 24, 1))
sketch2.addConstraint(Sketcher.Constraint("Tangent", 24, 2, 25, 1))
sketch2.addConstraint(Sketcher.Constraint("Tangent", 25, 2, 26, 1))
sketch2.addConstraint(Sketcher.Constraint("Tangent", 26, 2, 27, 1))
sketch2.addConstraint(Sketcher.Constraint("Tangent", 27, 2, 8, 1))
sketch2.addConstraint(Sketcher.Constraint("Horizontal", 0))
sketch2.addConstraint(Sketcher.Constraint("Vertical", 2))
sketch2.addConstraint(Sketcher.Constraint("Horizontal", 3))
sketch2.addConstraint(Sketcher.Constraint("Vertical", 4))
sketch2.addConstraint(Sketcher.Constraint("Vertical", 10))
sketch2.addConstraint(Sketcher.Constraint("Vertical", 14))
sketch2.addConstraint(Sketcher.Constraint("Horizontal", 16))
sketch2.addConstraint(Sketcher.Constraint("Vertical", 20))
sketch2.addConstraint(Sketcher.Constraint("Horizontal", 24))
sketch2.addConstraint(Sketcher.Constraint("Vertical", 26))
sketch2.addConstraint(Sketcher.Constraint("Equal", 1, 5))
sketch2.addConstraint(Sketcher.Constraint("Equal", 9, 11))
sketch2.addConstraint(Sketcher.Constraint("Equal", 11, 13))
sketch2.addConstraint(Sketcher.Constraint("Equal", 21, 23))
sketch2.addConstraint(Sketcher.Constraint("Equal", 23, 25))
sketch2.addConstraint(Sketcher.Constraint("Equal", 13, 27))
sketch2.addConstraint(Sketcher.Constraint("Horizontal", 17, 3, 14, 2))
sketch2.addConstraint(Sketcher.Constraint("Vertical", 15, 3, 25, 3))
sketch2.addConstraint(Sketcher.Constraint("Vertical", 13, 3, 27, 3))
sketch2.addConstraint(Sketcher.Constraint("Vertical", 6, 3, 28, 3))
sketch2.addConstraint(Sketcher.Constraint("Vertical", 8, 2, 11, 1))
sketch2.addConstraint(Sketcher.Constraint("Vertical", 7, 3, 13, 2))
sketch2.addConstraint(Sketcher.Constraint("Equal", 14, 26))
sketch2.addConstraint(Sketcher.Constraint("Radius", 15, Q("0.2000001 in")))
sketch2.addConstraint(Sketcher.Constraint("Radius", 1, Q("0.0750001 in")))
sketch2.addConstraint(Sketcher.Constraint("DistanceY", 2, 1, 2, 2, Q("2.71 in")))
sketch2.addConstraint(Sketcher.Constraint("DistanceX", 1, 3, 6, 3, Q("0.1599999 in")))
sketch2.addConstraint(Sketcher.Constraint("DistanceY", 5, 3, 7, 3, Q("1.3399999 in")))
sketch2.addConstraint(Sketcher.Constraint("DistanceY", 9, 3, 13, 3, Q("1.29 in")))
sketch2.addConstraint(Sketcher.Constraint("DistanceY", 6, 3, 17, 3, Q("2.1200001 in")))
sketch2.addConstraint(Sketcher.Constraint("DistanceX", 6, 3, 21, 3, Q("0.2500002 in")))
sketch2.addConstraint(Sketcher.Constraint("DistanceY", 23, 3, 6, 3, Q("0.0199999 in")))
sketch2.addConstraint(Sketcher.Constraint("DistanceY", 28, 3, 17, 3, Q("0.0100001 in")))
sketch2.addConstraint(Sketcher.Constraint("DistanceY", 0, 2, 6, 3, Q("0.36 in")))
sketch2.addConstraint(Sketcher.Constraint("DistanceX", 15, 3, 3, 2, Q("0.4500001 in")))
sketch2.addConstraint(Sketcher.Constraint("DistanceX", 1, 3, -1, 1, Q("1.8959999 in")))
sketch2.addConstraint(Sketcher.Constraint("DistanceY", 1, 3, -1, 1, Q("1.0859999 in")))
sketch2.addConstraint(Sketcher.Constraint("Radius", 9, Q("5.079991 mm")))
sketch2.addConstraint(Sketcher.Constraint("Radius", 19, Q("5.080021 mm")))
sketch2.addConstraint(Sketcher.Constraint("DistanceX", 9, 1, 7, 3, Q("0.125 in")))
sketch2.addConstraint(Sketcher.Constraint("Diameter", 6, Q("3.059614 mm")))
sketch2.addConstraint(Sketcher.Constraint("Diameter", 7, Q("3.060572 mm")))
sketch2.addConstraint(Sketcher.Constraint("Diameter", 28, Q("3.056556 mm")))
sketch2.addConstraint(Sketcher.Constraint("DistanceX", 24, 1, 24, 2, Q("71.45651 mm")))
sketch2.addConstraint(Sketcher.Constraint("DistanceY", 10, 1, 10, 2, Q("24.01755 mm")))
sketch2.addConstraint(Sketcher.Constraint("DistanceY", 21, 3, 9, 3, Q("8.7323 mm")))
sketch2.addConstraint(Sketcher.Constraint("Distance", 22, Q("7.876241 mm")))
sketch2.addConstraint(Sketcher.Constraint("DistanceX", 16, 2, 16, 1, Q("66.475013 mm")))
sketch2.addConstraint(Sketcher.Constraint("DistanceY", 20, 2, 20, 1, Q("28.455248 mm")))
pocket1 = doc.addObject("PartDesign::Pocket", "Pocket")
body.addObject(pocket1)
pocket1.Profile = sketch2
pocket1.Length = Q("0.125 in")
pocket1.Reversed = True

doc.recompute()
